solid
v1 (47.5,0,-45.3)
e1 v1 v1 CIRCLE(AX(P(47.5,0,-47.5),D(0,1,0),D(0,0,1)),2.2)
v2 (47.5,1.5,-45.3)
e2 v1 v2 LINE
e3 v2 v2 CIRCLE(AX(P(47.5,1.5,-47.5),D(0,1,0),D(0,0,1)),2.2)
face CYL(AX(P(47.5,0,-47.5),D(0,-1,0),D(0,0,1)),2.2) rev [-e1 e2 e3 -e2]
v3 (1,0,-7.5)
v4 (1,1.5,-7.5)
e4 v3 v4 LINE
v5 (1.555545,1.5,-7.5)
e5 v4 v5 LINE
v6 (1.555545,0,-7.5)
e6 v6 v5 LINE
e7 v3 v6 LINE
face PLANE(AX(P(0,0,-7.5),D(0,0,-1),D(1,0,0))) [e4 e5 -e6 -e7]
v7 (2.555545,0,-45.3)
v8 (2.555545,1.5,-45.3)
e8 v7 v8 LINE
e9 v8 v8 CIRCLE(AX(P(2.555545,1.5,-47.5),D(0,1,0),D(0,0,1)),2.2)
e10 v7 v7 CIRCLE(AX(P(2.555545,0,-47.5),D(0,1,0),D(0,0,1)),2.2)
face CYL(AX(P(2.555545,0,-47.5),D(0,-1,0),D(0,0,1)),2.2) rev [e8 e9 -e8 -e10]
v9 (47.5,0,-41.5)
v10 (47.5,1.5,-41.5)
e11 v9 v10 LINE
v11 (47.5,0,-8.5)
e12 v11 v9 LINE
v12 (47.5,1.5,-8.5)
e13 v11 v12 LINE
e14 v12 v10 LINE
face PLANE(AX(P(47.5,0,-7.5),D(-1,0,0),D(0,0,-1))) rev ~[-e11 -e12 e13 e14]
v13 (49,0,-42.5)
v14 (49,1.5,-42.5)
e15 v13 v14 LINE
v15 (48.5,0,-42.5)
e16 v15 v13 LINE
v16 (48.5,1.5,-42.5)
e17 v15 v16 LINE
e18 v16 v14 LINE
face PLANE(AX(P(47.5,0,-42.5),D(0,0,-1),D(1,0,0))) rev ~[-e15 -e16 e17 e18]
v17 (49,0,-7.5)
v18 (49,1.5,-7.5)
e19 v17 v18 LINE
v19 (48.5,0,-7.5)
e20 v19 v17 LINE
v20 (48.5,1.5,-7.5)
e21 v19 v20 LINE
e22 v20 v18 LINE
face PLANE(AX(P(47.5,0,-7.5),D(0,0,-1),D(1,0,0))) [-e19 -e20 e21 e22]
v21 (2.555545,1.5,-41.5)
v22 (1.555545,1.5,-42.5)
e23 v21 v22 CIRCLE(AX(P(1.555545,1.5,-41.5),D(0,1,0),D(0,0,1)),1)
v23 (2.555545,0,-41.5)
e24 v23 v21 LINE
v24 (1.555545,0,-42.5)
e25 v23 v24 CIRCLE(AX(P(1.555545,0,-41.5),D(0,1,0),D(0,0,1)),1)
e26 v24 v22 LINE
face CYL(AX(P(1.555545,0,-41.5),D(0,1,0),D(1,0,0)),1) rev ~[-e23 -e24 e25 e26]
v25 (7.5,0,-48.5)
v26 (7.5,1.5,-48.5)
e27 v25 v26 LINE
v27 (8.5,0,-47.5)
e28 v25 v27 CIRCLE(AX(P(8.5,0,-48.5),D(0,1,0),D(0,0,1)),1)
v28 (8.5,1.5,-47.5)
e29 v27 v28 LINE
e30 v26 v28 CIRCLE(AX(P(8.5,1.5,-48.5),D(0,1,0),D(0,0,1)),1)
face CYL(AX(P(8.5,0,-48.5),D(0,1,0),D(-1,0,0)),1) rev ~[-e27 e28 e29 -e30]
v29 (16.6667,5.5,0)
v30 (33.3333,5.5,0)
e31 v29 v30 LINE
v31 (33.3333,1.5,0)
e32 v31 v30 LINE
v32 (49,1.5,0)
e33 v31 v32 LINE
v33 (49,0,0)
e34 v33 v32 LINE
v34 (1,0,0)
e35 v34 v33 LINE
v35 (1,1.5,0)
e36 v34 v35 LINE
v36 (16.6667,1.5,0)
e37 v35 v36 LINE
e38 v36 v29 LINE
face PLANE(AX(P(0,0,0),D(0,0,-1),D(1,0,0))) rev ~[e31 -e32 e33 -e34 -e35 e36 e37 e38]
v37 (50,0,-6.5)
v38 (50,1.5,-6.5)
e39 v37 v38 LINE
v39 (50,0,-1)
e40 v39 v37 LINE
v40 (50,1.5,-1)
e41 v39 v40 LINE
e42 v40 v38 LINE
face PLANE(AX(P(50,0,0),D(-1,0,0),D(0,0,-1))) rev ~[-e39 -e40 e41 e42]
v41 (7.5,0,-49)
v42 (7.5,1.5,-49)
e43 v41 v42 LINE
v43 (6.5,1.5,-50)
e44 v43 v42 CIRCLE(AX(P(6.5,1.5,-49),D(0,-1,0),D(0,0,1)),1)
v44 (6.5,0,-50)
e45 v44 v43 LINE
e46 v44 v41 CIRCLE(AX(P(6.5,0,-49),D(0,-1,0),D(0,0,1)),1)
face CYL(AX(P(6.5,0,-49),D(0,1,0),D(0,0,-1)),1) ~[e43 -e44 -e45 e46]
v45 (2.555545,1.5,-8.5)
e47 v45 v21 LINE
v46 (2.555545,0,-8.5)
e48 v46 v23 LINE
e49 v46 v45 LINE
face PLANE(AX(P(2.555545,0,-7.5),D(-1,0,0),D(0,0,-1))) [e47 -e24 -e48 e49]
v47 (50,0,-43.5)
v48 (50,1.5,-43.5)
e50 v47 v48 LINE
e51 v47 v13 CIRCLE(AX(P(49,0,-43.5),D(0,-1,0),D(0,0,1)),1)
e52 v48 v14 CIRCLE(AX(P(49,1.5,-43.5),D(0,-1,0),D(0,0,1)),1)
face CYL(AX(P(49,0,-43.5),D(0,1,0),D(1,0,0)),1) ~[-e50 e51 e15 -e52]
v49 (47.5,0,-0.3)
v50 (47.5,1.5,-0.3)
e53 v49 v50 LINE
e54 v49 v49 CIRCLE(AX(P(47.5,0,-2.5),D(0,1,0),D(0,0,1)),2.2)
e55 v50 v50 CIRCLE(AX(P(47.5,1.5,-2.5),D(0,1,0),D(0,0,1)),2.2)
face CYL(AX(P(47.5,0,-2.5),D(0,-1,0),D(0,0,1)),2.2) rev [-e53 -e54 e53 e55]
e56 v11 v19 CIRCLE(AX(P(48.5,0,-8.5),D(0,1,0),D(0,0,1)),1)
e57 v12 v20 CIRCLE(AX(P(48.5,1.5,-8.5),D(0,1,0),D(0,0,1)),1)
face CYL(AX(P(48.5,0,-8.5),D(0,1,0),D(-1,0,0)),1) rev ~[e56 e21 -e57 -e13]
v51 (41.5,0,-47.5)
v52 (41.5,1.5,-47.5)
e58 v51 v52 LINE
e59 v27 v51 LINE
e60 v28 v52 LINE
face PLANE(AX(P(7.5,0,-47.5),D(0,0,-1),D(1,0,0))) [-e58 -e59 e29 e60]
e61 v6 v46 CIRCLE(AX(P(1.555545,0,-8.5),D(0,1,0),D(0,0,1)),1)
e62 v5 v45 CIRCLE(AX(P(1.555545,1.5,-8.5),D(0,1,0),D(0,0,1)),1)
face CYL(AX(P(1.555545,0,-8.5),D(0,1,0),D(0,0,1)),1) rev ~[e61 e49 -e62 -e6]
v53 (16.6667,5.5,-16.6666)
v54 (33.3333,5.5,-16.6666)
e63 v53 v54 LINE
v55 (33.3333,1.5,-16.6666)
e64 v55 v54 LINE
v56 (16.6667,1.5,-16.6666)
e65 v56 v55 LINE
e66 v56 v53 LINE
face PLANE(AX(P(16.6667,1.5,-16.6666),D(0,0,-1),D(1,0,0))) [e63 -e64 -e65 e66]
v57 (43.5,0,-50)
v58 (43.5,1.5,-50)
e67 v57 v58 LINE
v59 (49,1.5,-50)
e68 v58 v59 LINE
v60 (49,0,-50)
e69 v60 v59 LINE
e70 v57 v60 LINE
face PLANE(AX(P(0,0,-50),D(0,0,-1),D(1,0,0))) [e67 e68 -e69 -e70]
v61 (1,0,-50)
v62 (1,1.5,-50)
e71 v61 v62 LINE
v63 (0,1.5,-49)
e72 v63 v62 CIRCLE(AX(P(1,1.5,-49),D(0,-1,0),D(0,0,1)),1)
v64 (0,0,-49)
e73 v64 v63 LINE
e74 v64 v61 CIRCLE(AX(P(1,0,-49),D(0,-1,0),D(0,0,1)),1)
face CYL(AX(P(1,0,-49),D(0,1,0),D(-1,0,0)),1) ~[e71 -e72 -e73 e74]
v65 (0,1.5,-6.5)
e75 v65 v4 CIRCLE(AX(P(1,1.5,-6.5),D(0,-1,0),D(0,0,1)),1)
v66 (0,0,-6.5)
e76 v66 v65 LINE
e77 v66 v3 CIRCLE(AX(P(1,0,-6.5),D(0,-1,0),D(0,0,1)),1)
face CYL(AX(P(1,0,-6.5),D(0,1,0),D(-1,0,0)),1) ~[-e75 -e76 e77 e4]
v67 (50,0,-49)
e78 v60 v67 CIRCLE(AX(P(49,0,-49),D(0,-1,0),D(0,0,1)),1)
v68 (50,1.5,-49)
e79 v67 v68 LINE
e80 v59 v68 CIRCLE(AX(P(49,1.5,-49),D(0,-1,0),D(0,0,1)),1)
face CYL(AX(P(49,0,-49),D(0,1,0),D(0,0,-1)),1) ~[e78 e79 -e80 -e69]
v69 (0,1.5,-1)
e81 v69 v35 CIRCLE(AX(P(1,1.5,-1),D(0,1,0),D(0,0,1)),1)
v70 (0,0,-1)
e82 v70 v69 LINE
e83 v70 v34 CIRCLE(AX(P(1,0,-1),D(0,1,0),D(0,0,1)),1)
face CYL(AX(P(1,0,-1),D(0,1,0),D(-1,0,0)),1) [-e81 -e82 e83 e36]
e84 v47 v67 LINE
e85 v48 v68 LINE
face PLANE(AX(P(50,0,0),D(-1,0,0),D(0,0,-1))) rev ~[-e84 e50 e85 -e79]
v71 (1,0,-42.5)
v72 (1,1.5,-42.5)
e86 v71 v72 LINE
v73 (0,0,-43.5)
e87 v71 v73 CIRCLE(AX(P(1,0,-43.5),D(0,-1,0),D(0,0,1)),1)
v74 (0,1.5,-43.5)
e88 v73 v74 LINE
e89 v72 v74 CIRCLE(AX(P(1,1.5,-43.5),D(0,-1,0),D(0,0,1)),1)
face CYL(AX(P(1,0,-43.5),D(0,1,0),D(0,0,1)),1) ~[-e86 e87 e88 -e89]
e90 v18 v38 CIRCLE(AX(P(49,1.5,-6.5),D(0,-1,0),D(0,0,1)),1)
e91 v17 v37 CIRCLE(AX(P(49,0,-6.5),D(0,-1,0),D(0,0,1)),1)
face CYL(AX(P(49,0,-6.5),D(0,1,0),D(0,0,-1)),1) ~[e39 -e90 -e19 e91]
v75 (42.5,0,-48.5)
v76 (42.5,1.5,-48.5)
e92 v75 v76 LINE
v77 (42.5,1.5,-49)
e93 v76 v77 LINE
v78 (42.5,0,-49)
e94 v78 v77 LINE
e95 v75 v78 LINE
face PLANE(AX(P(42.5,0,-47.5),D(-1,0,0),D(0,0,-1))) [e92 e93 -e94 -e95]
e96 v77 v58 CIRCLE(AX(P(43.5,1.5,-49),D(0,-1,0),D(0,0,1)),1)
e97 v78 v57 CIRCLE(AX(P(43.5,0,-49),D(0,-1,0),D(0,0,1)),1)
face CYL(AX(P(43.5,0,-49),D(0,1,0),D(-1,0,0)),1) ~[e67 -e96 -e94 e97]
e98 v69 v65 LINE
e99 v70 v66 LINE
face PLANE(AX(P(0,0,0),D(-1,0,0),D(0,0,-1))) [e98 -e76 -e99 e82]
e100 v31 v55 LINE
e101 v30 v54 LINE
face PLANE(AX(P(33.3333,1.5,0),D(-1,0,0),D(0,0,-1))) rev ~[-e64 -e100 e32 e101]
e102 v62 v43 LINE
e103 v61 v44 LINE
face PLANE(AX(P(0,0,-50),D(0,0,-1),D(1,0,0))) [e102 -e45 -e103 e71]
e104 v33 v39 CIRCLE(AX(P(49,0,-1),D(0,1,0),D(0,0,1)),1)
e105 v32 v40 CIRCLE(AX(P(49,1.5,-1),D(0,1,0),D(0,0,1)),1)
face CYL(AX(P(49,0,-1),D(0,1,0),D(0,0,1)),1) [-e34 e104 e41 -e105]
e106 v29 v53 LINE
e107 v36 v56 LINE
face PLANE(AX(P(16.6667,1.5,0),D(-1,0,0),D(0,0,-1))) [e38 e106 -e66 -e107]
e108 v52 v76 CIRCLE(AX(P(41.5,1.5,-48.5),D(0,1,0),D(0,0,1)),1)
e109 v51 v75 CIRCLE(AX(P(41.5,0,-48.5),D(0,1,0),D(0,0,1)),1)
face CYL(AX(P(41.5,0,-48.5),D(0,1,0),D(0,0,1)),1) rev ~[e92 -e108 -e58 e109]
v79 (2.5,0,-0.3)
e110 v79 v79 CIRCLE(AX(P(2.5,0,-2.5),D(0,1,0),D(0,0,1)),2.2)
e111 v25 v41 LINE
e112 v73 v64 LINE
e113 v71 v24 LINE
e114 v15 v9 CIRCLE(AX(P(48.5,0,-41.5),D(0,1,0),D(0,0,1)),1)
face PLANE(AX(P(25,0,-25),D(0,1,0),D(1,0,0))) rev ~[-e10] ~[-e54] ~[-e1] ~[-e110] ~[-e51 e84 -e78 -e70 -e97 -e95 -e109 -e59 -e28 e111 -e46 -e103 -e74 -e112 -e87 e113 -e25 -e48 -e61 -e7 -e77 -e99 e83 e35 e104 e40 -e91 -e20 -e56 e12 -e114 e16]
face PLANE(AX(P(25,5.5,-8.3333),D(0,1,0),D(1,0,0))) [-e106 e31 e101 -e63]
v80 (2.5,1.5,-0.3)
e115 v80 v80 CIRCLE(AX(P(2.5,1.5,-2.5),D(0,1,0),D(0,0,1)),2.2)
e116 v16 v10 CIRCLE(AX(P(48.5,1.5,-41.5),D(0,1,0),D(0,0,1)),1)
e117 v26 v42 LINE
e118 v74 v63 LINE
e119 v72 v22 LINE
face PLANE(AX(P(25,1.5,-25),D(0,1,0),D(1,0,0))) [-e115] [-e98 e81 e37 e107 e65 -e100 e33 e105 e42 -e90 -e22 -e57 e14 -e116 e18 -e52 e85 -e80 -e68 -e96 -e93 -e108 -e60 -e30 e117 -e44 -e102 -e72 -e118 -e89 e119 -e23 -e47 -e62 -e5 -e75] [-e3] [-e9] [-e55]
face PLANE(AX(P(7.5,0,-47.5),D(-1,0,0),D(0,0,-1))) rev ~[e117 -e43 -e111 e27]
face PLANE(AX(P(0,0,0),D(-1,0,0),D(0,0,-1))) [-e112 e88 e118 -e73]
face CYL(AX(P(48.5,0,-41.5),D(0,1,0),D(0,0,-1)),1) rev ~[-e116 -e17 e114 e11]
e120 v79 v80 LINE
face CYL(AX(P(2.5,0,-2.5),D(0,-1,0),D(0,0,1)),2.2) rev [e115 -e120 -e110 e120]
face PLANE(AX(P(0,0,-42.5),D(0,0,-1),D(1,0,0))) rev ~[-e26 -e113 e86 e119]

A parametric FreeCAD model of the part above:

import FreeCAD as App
import Part
import Sketcher

V = App.Vector
Q = App.Units.Quantity


def edges_at(feature, points):
    """Names of the edges that pass closest to the given points."""
    edges = feature.Shape.Edges
    near = lambda p: min(range(len(edges)), key=lambda i: edges[i].distToShape(Part.Vertex(*p))[0])
    return sorted({f"Edge{near(p) + 1}" for p in points})


def add_polygon(sketch, points):
    """Adds a closed chain of lines whose ends are joined by coincident constraints."""
    first, n = sketch.GeometryCount, len(points)
    for a, b in zip(points, points[1:] + points[:1]):
        sketch.addGeometry(Part.LineSegment(App.Vector(*a, 0), App.Vector(*b, 0)), False)
    for i in range(n):
        sketch.addConstraint(Sketcher.Constraint("Coincident", first + i, 2, first + (i + 1) % n, 1))

doc = App.newDocument("Part")
body = doc.addObject("PartDesign::Body", "Body")

# Sketch on XZ plane
sketch1 = doc.addObject("Sketcher::SketchObject", "Sketch")
body.addObject(sketch1)
sketch1.AttachmentSupport = (doc.XZ_Plane, [""])
sketch1.MapMode = "FlatFace"
add_polygon(sketch1, [(0, -50), (0, 0), (50, 0), (50, -50)])  # lines 0-3
sketch1.addGeometry(Part.Circle(V(2.5, -2.5, 0), V(0, 0, 1), 2.2), False)  # 4
sketch1.addGeometry(Part.Circle(V(47.5, -2.5, 0), V(0, 0, 1), 2.2), False)  # 5
sketch1.addGeometry(Part.Circle(V(2.6, -47.5, 0), V(0, 0, 1), 2.2), False)  # 6
sketch1.addGeometry(Part.Circle(V(47.5, -47.5, 0), V(0, 0, 1), 2.2), False)  # 7
sketch1.addConstraint([
    Sketcher.Constraint("Vertical", 0),
    Sketcher.Constraint("Horizontal", 1),
    Sketcher.Constraint("Vertical", 2),
    Sketcher.Constraint("Horizontal", 3),
    Sketcher.Constraint("Coincident", 0, 2, -1, 1),
    Sketcher.Constraint("Equal", 4, 5),
    Sketcher.Constraint("Equal", 5, 6),
    Sketcher.Constraint("Equal", 6, 7),
    Sketcher.Constraint("Horizontal", 4, 3, 5, 3),
    Sketcher.Constraint("Horizontal", 6, 3, 7, 3),
    Sketcher.Constraint("Vertical", 5, 3, 7, 3),
    Sketcher.Constraint("Equal", 3, 0),
    Sketcher.Constraint("Diameter", 4, Q("4.4 mm")),
    Sketcher.Constraint("DistanceX", 1, 1, 1, 2, Q("50 mm")),
    Sketcher.Constraint("DistanceX", 4, 3, 5, 3, Q("45 mm")),
    Sketcher.Constraint("DistanceY", 6, 3, 4, 3, Q("45 mm")),
    Sketcher.Constraint("DistanceX", -1, 1, 4, 3, Q("2.5 mm")),
    Sketcher.Constraint("DistanceY", 4, 3, -1, 1, Q("2.5 mm")),
    Sketcher.Constraint("DistanceX", -1, 1, 6, 3, Q("2.555545 mm")),
])
pad1 = doc.addObject("PartDesign::Pad", "Pad")
body.addObject(pad1)
pad1.Profile = sketch1
pad1.Length = 1.5
pad1.Reversed = True

# Sketch on XZ plane
sketch2 = doc.addObject("Sketcher::SketchObject", "Sketch001")
body.addObject(sketch2)
sketch2.AttachmentSupport = (doc.XZ_Plane, [""])
sketch2.MapMode = "FlatFace"
add_polygon(sketch2, [(0, -42.5), (0, -7.5), (2.6, -7.5), (2.6, -42.5)])  # lines 0-3
add_polygon(sketch2, [(47.5, -42.5), (47.5, -7.5), (50, -7.5), (50, -42.5)])  # lines 4-7
add_polygon(sketch2, [(7.5, -50), (7.5, -47.5), (42.5, -47.5), (42.5, -50)])  # lines 8-11
sketch2.addConstraint([
    Sketcher.Constraint("Vertical", 0),
    Sketcher.Constraint("Horizontal", 1),
    Sketcher.Constraint("Vertical", 2),
    Sketcher.Constraint("Horizontal", 3),
    Sketcher.Constraint("Vertical", 4),
    Sketcher.Constraint("Horizontal", 5),
    Sketcher.Constraint("Vertical", 6),
    Sketcher.Constraint("Horizontal", 7),
    Sketcher.Constraint("Vertical", 8),
    Sketcher.Constraint("Horizontal", 9),
    Sketcher.Constraint("Vertical", 10),
    Sketcher.Constraint("Horizontal", 11),
    Sketcher.Constraint("PointOnObject", 0, 2, -2),
    Sketcher.Constraint("Horizontal", 1, 2, 4, 2),
    Sketcher.Constraint("Horizontal", 3, 2, 6, 2),
    Sketcher.Constraint("Equal", 11, 0),
    Sketcher.Constraint("Equal", 7, 8),
    Sketcher.Constraint("DistanceX", 9, 1, 9, 2, Q("35 mm")),
    Sketcher.Constraint("DistanceX", 5, 1, 5, 2, Q("2.5 mm")),
    Sketcher.Constraint("DistanceX", -1, 1, 5, 2, Q("50 mm")),
    Sketcher.Constraint("DistanceY", 10, 2, -1, 1, Q("50 mm")),
    Sketcher.Constraint("DistanceY", 8, 2, 2, 2, Q("5 mm")),
    Sketcher.Constraint("DistanceX", 8, 2, 7, 2, Q("40 mm")),
    Sketcher.Constraint("DistanceX", 1, 1, 1, 2, Q("2.555545 mm")),
])
pocket1 = doc.addObject("PartDesign::Pocket", "Pocket")
body.addObject(pocket1)
pocket1.Profile = sketch2
pocket1.Length = 1.5
doc.recompute()

fillet = doc.addObject("PartDesign::Fillet", "Fillet")
body.addObject(fillet)
fillet.Base = (pocket1, edges_at(pocket1, [
    (0, 0.75, -7.5),
    (2.556, 0.75, -7.5),
    (2.556, 0.75, -42.5),
    (0, 0.75, -42.5),
    (47.5, 0.75, -7.5),
    (50, 0.75, -7.5),
    (50, 0.75, -42.5),
    (47.5, 0.75, -42.5),
    (7.5, 0.75, -47.5),
    (42.5, 0.75, -47.5),
    (42.5, 0.75, -50),
    (7.5, 0.75, -50),
    (0, 0.75, -50),
    (50, 0.75, -50),
    (50, 0.75, 0),
    (0, 0.75, 0),
]))
fillet.Radius = 1

# Sketch on XZ plane
sketch3 = doc.addObject("Sketcher::SketchObject", "Sketch002")
body.addObject(sketch3)
sketch3.AttachmentSupport = (doc.XZ_Plane, [""])
sketch3.MapMode = "FlatFace"
sketch3.AttachmentOffset = App.Placement(V(0, 0, -1.5), App.Rotation())
add_polygon(sketch3, [(17, -17), (17, 0), (33, 0), (33, -17)])  # lines 0-3
sketch3.addConstraint([
    Sketcher.Constraint("Vertical", 0),
    Sketcher.Constraint("Horizontal", 1),
    Sketcher.Constraint("Vertical", 2),
    Sketcher.Constraint("Horizontal", 3),
    Sketcher.Constraint("PointOnObject", 0, 2, -1),
    Sketcher.Constraint("Equal", 3, 0),
    Sketcher.Constraint("DistanceX", 1, 1, 1, 2, Q("16.6666 mm")),
    Sketcher.Constraint("DistanceX", -1, 1, 0, 2, Q("16.6667 mm")),
])
pad2 = doc.addObject("PartDesign::Pad", "Pad001")
body.addObject(pad2)
pad2.Profile = sketch3
pad2.Length = 4
pad2.Reversed = True

doc.recompute()
